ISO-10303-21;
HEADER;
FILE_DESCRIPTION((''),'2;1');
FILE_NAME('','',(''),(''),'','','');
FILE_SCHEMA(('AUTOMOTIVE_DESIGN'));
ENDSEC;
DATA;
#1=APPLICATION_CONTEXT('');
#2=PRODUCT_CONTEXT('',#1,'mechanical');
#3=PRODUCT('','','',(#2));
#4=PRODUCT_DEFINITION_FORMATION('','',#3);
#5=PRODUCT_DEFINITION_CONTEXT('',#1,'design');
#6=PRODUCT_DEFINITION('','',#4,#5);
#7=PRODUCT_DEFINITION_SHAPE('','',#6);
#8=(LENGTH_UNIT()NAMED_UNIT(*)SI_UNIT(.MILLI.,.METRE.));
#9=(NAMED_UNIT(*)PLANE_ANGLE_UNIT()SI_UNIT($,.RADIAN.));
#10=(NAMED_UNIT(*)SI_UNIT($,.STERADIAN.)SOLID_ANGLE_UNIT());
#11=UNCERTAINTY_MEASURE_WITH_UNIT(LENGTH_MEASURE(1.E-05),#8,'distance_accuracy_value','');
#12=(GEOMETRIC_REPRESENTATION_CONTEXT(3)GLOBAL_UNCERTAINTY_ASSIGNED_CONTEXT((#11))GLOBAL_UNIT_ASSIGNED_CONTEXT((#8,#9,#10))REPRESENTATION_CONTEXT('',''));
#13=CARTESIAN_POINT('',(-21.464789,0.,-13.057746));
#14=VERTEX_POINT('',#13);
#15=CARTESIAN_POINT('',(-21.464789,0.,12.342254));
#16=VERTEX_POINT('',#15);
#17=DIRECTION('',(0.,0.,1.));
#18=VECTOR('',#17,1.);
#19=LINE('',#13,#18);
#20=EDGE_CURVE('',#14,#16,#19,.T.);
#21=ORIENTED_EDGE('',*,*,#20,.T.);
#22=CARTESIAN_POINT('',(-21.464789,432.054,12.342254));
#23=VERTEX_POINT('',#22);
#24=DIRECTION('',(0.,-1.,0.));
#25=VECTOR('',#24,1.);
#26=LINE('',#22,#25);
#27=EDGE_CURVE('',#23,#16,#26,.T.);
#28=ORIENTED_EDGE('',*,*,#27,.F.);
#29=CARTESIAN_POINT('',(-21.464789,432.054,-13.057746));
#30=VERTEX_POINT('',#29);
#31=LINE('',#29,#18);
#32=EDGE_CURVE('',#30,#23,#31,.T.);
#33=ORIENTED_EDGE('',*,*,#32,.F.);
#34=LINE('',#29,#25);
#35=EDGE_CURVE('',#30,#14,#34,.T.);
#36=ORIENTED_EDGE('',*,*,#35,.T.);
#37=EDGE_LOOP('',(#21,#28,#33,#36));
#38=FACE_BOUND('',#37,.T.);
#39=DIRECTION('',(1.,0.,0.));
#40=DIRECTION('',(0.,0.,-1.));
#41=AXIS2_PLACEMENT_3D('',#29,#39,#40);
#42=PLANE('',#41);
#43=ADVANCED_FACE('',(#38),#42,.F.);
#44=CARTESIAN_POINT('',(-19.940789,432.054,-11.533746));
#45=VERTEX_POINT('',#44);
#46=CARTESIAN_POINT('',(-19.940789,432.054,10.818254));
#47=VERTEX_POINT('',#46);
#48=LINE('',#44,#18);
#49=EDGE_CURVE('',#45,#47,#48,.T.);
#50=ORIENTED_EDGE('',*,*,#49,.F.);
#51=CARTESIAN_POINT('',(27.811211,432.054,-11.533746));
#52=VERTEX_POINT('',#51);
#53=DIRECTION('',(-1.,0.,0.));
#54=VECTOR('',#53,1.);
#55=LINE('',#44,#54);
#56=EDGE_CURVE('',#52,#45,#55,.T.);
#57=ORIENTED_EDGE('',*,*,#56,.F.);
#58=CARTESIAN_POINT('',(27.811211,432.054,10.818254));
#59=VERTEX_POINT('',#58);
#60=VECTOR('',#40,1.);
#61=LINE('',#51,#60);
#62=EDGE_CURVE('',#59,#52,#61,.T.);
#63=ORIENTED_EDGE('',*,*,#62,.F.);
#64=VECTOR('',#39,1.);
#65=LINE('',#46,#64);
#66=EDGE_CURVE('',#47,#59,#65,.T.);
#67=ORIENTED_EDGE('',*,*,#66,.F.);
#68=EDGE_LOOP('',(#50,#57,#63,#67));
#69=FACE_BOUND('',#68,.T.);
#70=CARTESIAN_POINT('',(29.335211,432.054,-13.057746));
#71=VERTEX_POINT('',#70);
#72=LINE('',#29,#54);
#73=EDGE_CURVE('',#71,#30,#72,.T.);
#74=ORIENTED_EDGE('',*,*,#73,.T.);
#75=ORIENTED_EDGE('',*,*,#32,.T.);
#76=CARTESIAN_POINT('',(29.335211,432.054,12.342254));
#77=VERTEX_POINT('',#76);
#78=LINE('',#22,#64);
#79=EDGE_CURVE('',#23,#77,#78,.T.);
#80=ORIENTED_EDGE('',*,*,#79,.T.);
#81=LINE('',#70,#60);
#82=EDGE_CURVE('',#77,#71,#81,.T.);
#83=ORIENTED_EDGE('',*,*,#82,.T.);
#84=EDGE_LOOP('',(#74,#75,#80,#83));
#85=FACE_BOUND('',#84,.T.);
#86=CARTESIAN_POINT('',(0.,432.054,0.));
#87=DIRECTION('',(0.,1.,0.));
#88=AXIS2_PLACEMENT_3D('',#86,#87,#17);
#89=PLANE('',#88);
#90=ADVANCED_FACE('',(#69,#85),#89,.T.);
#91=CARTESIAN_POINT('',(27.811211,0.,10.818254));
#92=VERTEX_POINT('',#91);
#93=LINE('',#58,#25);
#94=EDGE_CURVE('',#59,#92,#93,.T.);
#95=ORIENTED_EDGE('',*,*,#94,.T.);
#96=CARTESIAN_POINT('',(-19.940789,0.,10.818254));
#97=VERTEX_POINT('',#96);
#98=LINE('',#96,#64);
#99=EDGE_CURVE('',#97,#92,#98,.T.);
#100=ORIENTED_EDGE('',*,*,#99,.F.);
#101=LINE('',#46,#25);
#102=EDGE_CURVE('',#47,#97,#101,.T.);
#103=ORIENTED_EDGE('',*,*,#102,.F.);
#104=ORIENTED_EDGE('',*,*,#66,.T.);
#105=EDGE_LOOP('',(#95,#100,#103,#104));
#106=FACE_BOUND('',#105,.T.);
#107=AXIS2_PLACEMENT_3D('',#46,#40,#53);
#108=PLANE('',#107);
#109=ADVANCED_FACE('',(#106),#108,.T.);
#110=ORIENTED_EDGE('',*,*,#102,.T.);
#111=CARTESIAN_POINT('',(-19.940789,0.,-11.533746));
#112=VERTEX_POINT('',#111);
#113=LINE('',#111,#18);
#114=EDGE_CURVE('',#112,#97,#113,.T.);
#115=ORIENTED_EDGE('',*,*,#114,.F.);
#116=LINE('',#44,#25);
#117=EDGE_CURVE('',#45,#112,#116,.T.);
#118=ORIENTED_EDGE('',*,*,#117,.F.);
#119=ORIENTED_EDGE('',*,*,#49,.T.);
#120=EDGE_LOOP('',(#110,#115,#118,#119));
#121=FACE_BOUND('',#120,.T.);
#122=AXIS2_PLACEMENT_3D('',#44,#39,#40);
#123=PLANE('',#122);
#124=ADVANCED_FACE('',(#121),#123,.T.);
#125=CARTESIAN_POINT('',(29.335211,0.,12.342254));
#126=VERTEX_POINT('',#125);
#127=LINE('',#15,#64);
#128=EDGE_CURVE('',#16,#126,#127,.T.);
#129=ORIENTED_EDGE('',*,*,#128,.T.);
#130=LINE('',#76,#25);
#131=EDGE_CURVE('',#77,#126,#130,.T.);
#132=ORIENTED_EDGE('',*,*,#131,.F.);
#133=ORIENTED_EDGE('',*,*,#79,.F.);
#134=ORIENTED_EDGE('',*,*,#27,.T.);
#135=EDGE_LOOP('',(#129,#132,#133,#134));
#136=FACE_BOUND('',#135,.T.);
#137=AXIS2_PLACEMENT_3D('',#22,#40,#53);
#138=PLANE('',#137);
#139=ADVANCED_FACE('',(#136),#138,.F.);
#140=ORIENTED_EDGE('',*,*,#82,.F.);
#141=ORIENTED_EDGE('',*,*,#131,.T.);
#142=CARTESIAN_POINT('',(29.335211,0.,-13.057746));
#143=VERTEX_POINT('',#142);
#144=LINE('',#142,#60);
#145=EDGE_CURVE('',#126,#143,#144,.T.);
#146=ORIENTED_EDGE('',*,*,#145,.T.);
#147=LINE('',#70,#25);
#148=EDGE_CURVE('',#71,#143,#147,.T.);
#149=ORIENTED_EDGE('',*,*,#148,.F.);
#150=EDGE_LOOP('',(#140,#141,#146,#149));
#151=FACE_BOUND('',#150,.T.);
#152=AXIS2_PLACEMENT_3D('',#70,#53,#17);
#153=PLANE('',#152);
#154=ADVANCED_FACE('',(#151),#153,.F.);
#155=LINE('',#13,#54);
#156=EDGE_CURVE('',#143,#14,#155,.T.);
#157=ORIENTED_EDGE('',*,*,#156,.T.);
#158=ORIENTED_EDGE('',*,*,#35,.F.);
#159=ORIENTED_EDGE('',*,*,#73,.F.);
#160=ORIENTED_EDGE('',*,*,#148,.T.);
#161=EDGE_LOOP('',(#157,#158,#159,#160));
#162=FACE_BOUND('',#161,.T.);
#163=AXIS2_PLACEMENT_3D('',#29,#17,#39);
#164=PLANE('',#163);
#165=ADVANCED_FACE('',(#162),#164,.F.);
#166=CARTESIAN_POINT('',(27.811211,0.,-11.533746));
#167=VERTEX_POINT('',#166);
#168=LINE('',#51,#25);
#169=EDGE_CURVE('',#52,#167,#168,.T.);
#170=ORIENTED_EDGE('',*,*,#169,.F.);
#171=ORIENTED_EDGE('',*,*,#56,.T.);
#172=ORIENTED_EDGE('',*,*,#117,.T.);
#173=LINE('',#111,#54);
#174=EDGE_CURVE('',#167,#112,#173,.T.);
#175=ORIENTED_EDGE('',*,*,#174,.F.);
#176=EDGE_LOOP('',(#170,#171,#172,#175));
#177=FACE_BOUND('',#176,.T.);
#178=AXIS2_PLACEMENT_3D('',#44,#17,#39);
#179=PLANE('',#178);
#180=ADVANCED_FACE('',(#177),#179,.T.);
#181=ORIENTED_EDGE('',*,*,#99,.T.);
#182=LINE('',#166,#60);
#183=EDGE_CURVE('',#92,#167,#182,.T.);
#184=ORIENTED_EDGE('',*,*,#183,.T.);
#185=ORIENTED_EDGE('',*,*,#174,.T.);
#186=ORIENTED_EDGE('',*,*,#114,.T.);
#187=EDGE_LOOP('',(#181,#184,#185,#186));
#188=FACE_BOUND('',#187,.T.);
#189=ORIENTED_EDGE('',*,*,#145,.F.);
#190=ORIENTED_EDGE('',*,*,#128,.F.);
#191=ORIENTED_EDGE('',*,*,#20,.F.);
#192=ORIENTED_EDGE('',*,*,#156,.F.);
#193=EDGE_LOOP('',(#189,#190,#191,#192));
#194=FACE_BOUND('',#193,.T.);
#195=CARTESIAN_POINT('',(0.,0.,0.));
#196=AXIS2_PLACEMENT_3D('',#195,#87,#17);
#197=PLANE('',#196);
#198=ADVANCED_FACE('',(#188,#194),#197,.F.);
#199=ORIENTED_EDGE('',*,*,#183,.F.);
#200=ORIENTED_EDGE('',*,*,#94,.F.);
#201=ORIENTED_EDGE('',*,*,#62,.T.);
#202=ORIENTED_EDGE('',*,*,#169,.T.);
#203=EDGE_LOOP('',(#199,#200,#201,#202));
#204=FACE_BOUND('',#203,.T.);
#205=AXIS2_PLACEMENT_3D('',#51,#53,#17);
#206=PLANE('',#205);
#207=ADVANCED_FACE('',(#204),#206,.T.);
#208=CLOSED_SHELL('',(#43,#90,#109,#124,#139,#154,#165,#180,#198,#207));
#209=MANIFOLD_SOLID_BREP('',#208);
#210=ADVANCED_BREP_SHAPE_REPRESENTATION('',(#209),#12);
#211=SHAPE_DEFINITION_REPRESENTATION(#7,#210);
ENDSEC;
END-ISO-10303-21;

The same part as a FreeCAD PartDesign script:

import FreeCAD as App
import Part
import Sketcher
Q = App.Units.Quantity


def add_polygon(sketch, points):
    """Adds a closed chain of lines whose ends are joined by coincident constraints."""
    first, n = sketch.GeometryCount, len(points)
    for a, b in zip(points, points[1:] + points[:1]):
        sketch.addGeometry(Part.LineSegment(App.Vector(*a, 0), App.Vector(*b, 0)), False)
    for i in range(n):
        sketch.addConstraint(Sketcher.Constraint("Coincident", first + i, 2, first + (i + 1) % n, 1))

doc = App.newDocument("Part")
body = doc.addObject("PartDesign::Body", "Body")

# Sketch on XZ plane
sketch1 = body.newObject("Sketcher::SketchObject", "Sketch")
sketch1.AttachmentSupport = (doc.getObject("XZ_Plane"), [""])
sketch1.MapMode = "FlatFace"
add_polygon(sketch1, [(-21, -13), (-21, 12), (29, 12), (29, -13)])  # lines 0-3
add_polygon(sketch1, [(28, 11), (-20, 11), (-20, -12), (28, -12)])  # lines 4-7
sketch1.addConstraint(Sketcher.Constraint("Vertical", 0))
sketch1.addConstraint(Sketcher.Constraint("Horizontal", 1))
sketch1.addConstraint(Sketcher.Constraint("Vertical", 2))
sketch1.addConstraint(Sketcher.Constraint("Horizontal", 3))
sketch1.addConstraint(Sketcher.Constraint("Horizontal", 4))
sketch1.addConstraint(Sketcher.Constraint("Vertical", 5))
sketch1.addConstraint(Sketcher.Constraint("Horizontal", 6))
sketch1.addConstraint(Sketcher.Constraint("Vertical", 7))
sketch1.addConstraint(Sketcher.Constraint("DistanceX", 1, 1, 1, 2, Q("2 in")))
sketch1.addConstraint(Sketcher.Constraint("DistanceY", 0, 1, 0, 2, Q("1 in")))
sketch1.addConstraint(Sketcher.Constraint("DistanceX", 4, 2, 4, 1, Q("1.88 in")))
sketch1.addConstraint(Sketcher.Constraint("DistanceY", 5, 2, 5, 1, Q("0.88 in")))
sketch1.addConstraint(Sketcher.Constraint("DistanceX", 0, 2, 4, 2, Q("0.06 in")))
sketch1.addConstraint(Sketcher.Constraint("DistanceY", 4, 2, 0, 2, Q("0.06 in")))
sketch1.addConstraint(Sketcher.Constraint("DistanceX", 0, 2, -1, 1, 21.464789))
sketch1.addConstraint(Sketcher.Constraint("DistanceY", -1, 1, 0, 2, 12.342254))
pad1 = body.newObject("PartDesign::Pad", "Pad")
pad1.Profile = sketch1
pad1.Length = Q("17.01 in")
pad1.Reversed = True

doc.recompute()
